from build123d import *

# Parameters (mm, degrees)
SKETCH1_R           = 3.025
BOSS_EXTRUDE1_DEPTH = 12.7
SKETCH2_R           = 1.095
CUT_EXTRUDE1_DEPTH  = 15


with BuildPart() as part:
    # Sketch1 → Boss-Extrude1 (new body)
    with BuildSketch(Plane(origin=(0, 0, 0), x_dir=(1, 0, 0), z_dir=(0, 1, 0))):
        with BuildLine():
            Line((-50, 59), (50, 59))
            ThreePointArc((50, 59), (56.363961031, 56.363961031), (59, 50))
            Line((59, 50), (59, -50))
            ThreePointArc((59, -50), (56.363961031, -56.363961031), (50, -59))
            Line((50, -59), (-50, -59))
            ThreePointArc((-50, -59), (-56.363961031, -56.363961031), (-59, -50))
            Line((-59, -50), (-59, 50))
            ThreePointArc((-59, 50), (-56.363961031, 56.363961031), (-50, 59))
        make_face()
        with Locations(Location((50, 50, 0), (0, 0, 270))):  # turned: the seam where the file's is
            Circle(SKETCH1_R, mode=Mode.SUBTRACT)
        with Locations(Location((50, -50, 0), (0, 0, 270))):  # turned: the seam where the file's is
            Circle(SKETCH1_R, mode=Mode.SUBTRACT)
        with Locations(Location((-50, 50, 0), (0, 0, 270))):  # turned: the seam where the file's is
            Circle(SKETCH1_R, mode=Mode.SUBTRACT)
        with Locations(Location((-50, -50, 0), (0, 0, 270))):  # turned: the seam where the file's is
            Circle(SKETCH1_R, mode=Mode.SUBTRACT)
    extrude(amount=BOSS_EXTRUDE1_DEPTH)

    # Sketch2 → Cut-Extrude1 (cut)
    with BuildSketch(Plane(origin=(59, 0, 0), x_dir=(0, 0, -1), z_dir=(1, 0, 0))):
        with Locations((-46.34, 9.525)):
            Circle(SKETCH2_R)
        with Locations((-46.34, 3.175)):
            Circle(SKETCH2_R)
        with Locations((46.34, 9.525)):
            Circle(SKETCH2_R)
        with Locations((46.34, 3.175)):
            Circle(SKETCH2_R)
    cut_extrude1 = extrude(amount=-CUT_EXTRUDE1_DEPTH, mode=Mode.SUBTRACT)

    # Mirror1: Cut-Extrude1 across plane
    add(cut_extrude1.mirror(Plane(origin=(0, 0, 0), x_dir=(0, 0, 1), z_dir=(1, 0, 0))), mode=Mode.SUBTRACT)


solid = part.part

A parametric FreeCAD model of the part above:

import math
import FreeCAD as App
import Part
import Sketcher

V = App.Vector
Q = App.Units.Quantity

doc = App.newDocument("Part")
body = doc.addObject("PartDesign::Body", "Body")

# Sketch on XZ plane
sketch1 = body.newObject("Sketcher::SketchObject", "Sketch")
sketch1.AttachmentSupport = (doc.getObject("XZ_Plane"), [""])
sketch1.MapMode = "FlatFace"
sketch1.addGeometry(Part.LineSegment(V(50, -59, 0), V(-50, -59, 0)), False)
sketch1.addGeometry(Part.ArcOfCircle(Part.Circle(V(-50, -50, 0), V(0, 0, 1), 9), math.radians(180), math.radians(270)), False)
sketch1.addGeometry(Part.LineSegment(V(-59, -50, 0), V(-59, 50, 0)), False)
sketch1.addGeometry(Part.ArcOfCircle(Part.Circle(V(-50, 50, 0), V(0, 0, 1), 9), math.radians(90), math.radians(180)), False)
sketch1.addGeometry(Part.LineSegment(V(-50, 59, 0), V(50, 59, 0)), False)
sketch1.addGeometry(Part.ArcOfCircle(Part.Circle(V(50, 50, 0), V(0, 0, 1), 9), math.radians(0), math.radians(90)), False)
sketch1.addGeometry(Part.LineSegment(V(59, 50, 0), V(59, -50, 0)), False)
sketch1.addGeometry(Part.ArcOfCircle(Part.Circle(V(50, -50, 0), V(0, 0, 1), 9), math.radians(-90), math.radians(0)), False)
sketch1.addGeometry(Part.Circle(V(50, 50, 0), V(0, 0, 1), 3), False)
sketch1.addGeometry(Part.Circle(V(-50, 50, 0), V(0, 0, 1), 3), False)
sketch1.addGeometry(Part.Circle(V(50, -50, 0), V(0, 0, 1), 3), False)
sketch1.addGeometry(Part.Circle(V(-50, -50, 0), V(0, 0, 1), 3), False)
sketch1.addConstraint(Sketcher.Constraint("Tangent", 0, 2, 1, 2))
sketch1.addConstraint(Sketcher.Constraint("Tangent", 1, 1, 2, 1))
sketch1.addConstraint(Sketcher.Constraint("Tangent", 2, 2, 3, 2))
sketch1.addConstraint(Sketcher.Constraint("Tangent", 3, 1, 4, 1))
sketch1.addConstraint(Sketcher.Constraint("Tangent", 4, 2, 5, 2))
sketch1.addConstraint(Sketcher.Constraint("Tangent", 5, 1, 6, 1))
sketch1.addConstraint(Sketcher.Constraint("Tangent", 6, 2, 7, 2))
sketch1.addConstraint(Sketcher.Constraint("Tangent", 7, 1, 0, 1))
sketch1.addConstraint(Sketcher.Constraint("Horizontal", 0))
sketch1.addConstraint(Sketcher.Constraint("Vertical", 2))
sketch1.addConstraint(Sketcher.Constraint("Horizontal", 4))
sketch1.addConstraint(Sketcher.Constraint("Vertical", 6))
sketch1.addConstraint(Sketcher.Constraint("Coincident", 8, 3, 5, 3))
sketch1.addConstraint(Sketcher.Constraint("Coincident", 9, 3, 3, 3))
sketch1.addConstraint(Sketcher.Constraint("Coincident", 10, 3, 7, 3))
sketch1.addConstraint(Sketcher.Constraint("Coincident", 11, 3, 1, 3))
sketch1.addConstraint(Sketcher.Constraint("Equal", 1, 3))
sketch1.addConstraint(Sketcher.Constraint("Equal", 3, 5))
sketch1.addConstraint(Sketcher.Constraint("Equal", 5, 7))
sketch1.addConstraint(Sketcher.Constraint("Equal", 8, 9))
sketch1.addConstraint(Sketcher.Constraint("Equal", 9, 10))
sketch1.addConstraint(Sketcher.Constraint("Equal", 10, 11))
sketch1.addConstraint(Sketcher.Constraint("Symmetric", 1, 3, 5, 3, -1, 1))
sketch1.addConstraint(Sketcher.Constraint("Equal", 4, 2))
sketch1.addConstraint(Sketcher.Constraint("Radius", 1, Q("9 mm")))
sketch1.addConstraint(Sketcher.Constraint("Diameter", 8, Q("6.05 mm")))
sketch1.addConstraint(Sketcher.Constraint("DistanceX", 0, 2, 0, 1, Q("100 mm")))
pad1 = body.newObject("PartDesign::Pad", "Pad")
pad1.Profile = sketch1
pad1.Length = 12.7
pad1.Reversed = True

# Sketch on YZ plane
sketch2 = body.newObject("Sketcher::SketchObject", "Sketch001")
sketch2.AttachmentSupport = (doc.getObject("YZ_Plane"), [""])
sketch2.MapMode = "FlatFace"
sketch2.AttachmentOffset = App.Placement(V(0, 0, 59), App.Rotation())
sketch2.addGeometry(Part.Circle(V(9.5, 46.3, 0), V(0, 0, 1), 1.1), False)
sketch2.addGeometry(Part.Circle(V(3.2, 46.3, 0), V(0, 0, 1), 1.1), False)
sketch2.addGeometry(Part.Circle(V(9.5, -46.3, 0), V(0, 0, 1), 1.1), False)
sketch2.addGeometry(Part.Circle(V(3.2, -46.3, 0), V(0, 0, 1), 1.1), False)
sketch2.addConstraint(Sketcher.Constraint("Equal", 0, 1))
sketch2.addConstraint(Sketcher.Constraint("Equal", 1, 2))
sketch2.addConstraint(Sketcher.Constraint("Equal", 2, 3))
sketch2.addConstraint(Sketcher.Constraint("Symmetric", 0, 3, 2, 3, -1))
sketch2.addConstraint(Sketcher.Constraint("Symmetric", 1, 3, 3, 3, -1))
sketch2.addConstraint(Sketcher.Constraint("Horizontal", 0, 3, 1, 3))
sketch2.addConstraint(Sketcher.Constraint("Diameter", 0, Q("2.19 mm")))
sketch2.addConstraint(Sketcher.Constraint("DistanceY", -1, 1, 0, 3, Q("46.34 mm")))
sketch2.addConstraint(Sketcher.Constraint("DistanceX", 1, 3, 0, 3, Q("6.35 mm")))
sketch2.addConstraint(Sketcher.Constraint("DistanceX", -1, 1, 0, 3, Q("9.525 mm")))
pocket1 = body.newObject("PartDesign::Pocket", "Pocket")
pocket1.Profile = sketch2
pocket1.Length = 15
doc.recompute()

mirrored = body.newObject("PartDesign::Mirrored", "Mirrored")
mirrored.Originals = [pocket1]
mirrored.MirrorPlane = (doc.getObject("YZ_Plane"), [""])
body.Tip = mirrored

doc.recompute()
